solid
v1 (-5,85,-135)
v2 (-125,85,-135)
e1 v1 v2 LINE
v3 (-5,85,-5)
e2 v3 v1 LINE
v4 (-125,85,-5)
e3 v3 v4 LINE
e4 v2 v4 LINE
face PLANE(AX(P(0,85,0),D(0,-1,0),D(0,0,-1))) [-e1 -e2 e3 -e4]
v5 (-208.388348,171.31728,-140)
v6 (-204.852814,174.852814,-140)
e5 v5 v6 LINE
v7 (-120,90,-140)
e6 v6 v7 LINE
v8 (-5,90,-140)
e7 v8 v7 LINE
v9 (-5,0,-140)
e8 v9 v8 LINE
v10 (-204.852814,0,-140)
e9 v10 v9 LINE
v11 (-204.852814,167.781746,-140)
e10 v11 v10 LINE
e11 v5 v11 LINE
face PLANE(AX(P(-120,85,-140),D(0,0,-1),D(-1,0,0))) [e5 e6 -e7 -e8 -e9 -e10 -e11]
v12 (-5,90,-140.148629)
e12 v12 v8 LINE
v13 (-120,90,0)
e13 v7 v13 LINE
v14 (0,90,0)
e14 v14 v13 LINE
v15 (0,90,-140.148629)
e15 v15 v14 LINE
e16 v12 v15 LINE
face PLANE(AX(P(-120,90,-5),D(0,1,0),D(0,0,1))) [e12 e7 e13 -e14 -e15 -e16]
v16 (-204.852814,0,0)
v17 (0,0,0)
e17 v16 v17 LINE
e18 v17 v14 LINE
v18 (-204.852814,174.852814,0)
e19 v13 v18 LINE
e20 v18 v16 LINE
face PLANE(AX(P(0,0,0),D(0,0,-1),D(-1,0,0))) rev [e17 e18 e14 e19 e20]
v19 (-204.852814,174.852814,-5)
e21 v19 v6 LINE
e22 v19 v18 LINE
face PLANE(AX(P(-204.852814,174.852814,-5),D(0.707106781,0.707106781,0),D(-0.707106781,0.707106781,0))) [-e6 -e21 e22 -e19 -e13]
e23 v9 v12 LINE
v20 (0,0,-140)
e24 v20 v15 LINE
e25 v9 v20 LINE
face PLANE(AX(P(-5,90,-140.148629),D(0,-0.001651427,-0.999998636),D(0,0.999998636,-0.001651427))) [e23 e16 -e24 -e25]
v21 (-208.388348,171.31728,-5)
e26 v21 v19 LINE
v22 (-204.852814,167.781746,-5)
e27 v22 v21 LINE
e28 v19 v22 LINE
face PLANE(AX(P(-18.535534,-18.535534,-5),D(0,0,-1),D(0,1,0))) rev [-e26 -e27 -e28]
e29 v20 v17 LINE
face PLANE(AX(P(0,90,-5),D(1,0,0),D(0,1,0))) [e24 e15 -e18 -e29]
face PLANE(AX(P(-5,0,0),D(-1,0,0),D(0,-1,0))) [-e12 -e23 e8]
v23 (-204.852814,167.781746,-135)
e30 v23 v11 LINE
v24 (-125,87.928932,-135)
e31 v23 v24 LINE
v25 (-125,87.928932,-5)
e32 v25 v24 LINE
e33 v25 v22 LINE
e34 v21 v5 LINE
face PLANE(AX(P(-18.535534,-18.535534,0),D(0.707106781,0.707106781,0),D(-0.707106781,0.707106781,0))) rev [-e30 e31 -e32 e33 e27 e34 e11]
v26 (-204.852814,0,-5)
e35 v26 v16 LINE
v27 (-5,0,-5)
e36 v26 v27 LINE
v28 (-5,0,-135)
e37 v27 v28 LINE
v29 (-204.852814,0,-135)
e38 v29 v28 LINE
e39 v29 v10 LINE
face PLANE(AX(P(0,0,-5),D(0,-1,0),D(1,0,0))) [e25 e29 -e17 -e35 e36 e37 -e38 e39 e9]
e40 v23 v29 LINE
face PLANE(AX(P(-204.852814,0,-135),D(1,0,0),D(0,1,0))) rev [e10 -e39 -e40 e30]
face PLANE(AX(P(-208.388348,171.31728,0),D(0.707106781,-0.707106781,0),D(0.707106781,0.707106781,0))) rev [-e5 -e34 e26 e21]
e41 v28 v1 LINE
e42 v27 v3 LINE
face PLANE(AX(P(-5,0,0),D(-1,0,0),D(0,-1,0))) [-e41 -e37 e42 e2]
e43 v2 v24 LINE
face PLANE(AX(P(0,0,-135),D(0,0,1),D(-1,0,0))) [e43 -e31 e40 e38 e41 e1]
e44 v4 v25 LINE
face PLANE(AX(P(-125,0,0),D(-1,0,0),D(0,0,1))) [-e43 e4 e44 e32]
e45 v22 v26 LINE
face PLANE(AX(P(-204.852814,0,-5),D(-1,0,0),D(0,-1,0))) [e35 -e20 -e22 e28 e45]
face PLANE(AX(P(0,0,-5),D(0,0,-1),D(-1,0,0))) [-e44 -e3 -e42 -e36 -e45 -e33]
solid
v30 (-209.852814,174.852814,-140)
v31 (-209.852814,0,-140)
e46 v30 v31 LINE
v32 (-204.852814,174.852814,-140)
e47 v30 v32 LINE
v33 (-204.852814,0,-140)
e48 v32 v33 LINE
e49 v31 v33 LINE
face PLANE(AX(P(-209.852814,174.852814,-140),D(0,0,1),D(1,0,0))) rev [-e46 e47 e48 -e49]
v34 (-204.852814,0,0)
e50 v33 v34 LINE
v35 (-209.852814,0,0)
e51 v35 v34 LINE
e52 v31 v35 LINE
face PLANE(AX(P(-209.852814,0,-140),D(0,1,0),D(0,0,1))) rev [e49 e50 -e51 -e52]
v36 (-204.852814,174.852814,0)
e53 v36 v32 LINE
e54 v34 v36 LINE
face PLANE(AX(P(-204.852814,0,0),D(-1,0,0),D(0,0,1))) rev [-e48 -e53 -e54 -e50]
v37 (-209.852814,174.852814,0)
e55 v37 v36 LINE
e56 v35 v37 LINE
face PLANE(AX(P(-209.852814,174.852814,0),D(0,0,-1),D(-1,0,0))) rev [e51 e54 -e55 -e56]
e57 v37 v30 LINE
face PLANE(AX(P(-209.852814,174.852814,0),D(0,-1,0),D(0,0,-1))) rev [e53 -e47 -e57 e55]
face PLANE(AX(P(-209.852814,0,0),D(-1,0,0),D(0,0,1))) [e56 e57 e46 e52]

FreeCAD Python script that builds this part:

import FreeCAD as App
import Part
import Sketcher

V = App.Vector
Q = App.Units.Quantity

doc = App.newDocument("Part")
body = doc.addObject("PartDesign::Body", "Body")

# Sketch on XY plane
sketch1 = body.newObject("Sketcher::SketchObject", "Sketch")
sketch1.AttachmentSupport = (doc.getObject("XY_Plane"), [""])
sketch1.MapMode = "FlatFace"
sketch1.addGeometry([
    Part.LineSegment(V(-205, 0, 0), V(0, 0, 0)),  # 0
    Part.LineSegment(V(0, 0, 0), V(0, 90, 0)),  # 1
    Part.LineSegment(V(0, 90, 0), V(-120, 90, 0)),  # 2
    Part.LineSegment(V(-120, 90, 0), V(-205, 175, 0)),  # 3
    Part.LineSegment(V(-205, 175, 0), V(-205, 0, 0)),  # 4
], False)
sketch1.addConstraint([
    Sketcher.Constraint("Coincident", 0, 2, 1, 1),
    Sketcher.Constraint("Coincident", 1, 2, 2, 1),
    Sketcher.Constraint("Coincident", 2, 2, 3, 1),
    Sketcher.Constraint("Coincident", 3, 2, 4, 1),
    Sketcher.Constraint("Coincident", 4, 2, 0, 1),
    Sketcher.Constraint("Horizontal", 0),
    Sketcher.Constraint("Vertical", 1),
    Sketcher.Constraint("Horizontal", 2),
    Sketcher.Constraint("Vertical", 4),
    Sketcher.Constraint("Coincident", 0, 2, -1, 1),
    Sketcher.Constraint("DistanceX", 2, 2, 2, 1, 120.0),
    Sketcher.Constraint("DistanceY", 1, 1, 1, 2, 90.0),
    Sketcher.Constraint("Angle", 3, Q("135 deg")),
    Sketcher.Constraint("Distance", 3, 120.0),
])
pad1 = body.newObject("PartDesign::Pad", "Pad")
pad1.Profile = sketch1
pad1.Length = 5
pad1.Reversed = True

# Sketch on XZ plane
sketch2 = body.newObject("Sketcher::SketchObject", "Sketch001")
sketch2.AttachmentSupport = (doc.getObject("XZ_Plane"), [""])
sketch2.MapMode = "FlatFace"
sketch2.AttachmentOffset = App.Placement(V(0, 0, -90), App.Rotation())
sketch2.addGeometry([
    Part.LineSegment(V(-120, -140, 0), V(-120, 0, 0)),
    Part.LineSegment(V(-120, 0, 0), V(0, 0, 0)),
    Part.LineSegment(V(0, 0, 0), V(0, -140, 0)),
    Part.LineSegment(V(0, -140, 0), V(-120, -140, 0)),
], False)
sketch2.addConstraint([
    Sketcher.Constraint("Coincident", 0, 2, 1, 1),
    Sketcher.Constraint("Coincident", 1, 2, 2, 1),
    Sketcher.Constraint("Coincident", 2, 2, 3, 1),
    Sketcher.Constraint("Coincident", 3, 2, 0, 1),
    Sketcher.Constraint("Vertical", 0),
    Sketcher.Constraint("Horizontal", 1),
    Sketcher.Constraint("Vertical", 2),
    Sketcher.Constraint("Horizontal", 3),
    Sketcher.Constraint("Coincident", 1, 2, -1, 1),
    Sketcher.Constraint("DistanceX", 1, 1, 1, 2, 120.0),
    Sketcher.Constraint("DistanceY", 0, 1, 0, 2, 140.0),
])
pad2 = body.newObject("PartDesign::Pad", "Pad001")
pad2.Profile = sketch2
pad2.Length = 5
body2 = doc.addObject("PartDesign::Body", "Body001")

# Sketch on an angled plane
sketch3 = body2.newObject("Sketcher::SketchObject", "Sketch002")
sketch3.Placement = App.Placement(V(-15, -15, 0), App.Rotation(V(0, 0, -1), V(-0.707106781, 0.707106781, 0), V(0.707106781, 0.707106781, 0), "ZXY"))
sketch3.addGeometry([
    Part.LineSegment(V(5, 268, 0), V(5, 148, 0)),
    Part.LineSegment(V(5, 148, 0), V(140, 148, 0)),
    Part.LineSegment(V(140, 148, 0), V(140, 268, 0)),
    Part.LineSegment(V(140, 268, 0), V(5, 268, 0)),
], False)
sketch3.addConstraint([
    Sketcher.Constraint("Coincident", 0, 2, 1, 1),
    Sketcher.Constraint("Coincident", 1, 2, 2, 1),
    Sketcher.Constraint("Coincident", 2, 2, 3, 1),
    Sketcher.Constraint("Coincident", 3, 2, 0, 1),
    Sketcher.Constraint("Vertical", 0),
    Sketcher.Constraint("Horizontal", 1),
    Sketcher.Constraint("Vertical", 2),
    Sketcher.Constraint("Horizontal", 3),
    Sketcher.Constraint("DistanceX", 1, 1, 1, 2, 135.0),
    Sketcher.Constraint("DistanceY", 0, 2, 0, 1, 120.0),
    Sketcher.Constraint("DistanceX", -1, 1, 0, 2, 5.0),
    Sketcher.Constraint("DistanceY", -1, 1, 0, 2, 148.492424),
])
pad3 = body2.newObject("PartDesign::Pad", "Pad002")
pad3.Profile = sketch3
pad3.Length = 5
pad3.Reversed = True
body3 = doc.addObject("PartDesign::Body", "Body002")

# Sketch on YZ plane
sketch4 = body3.newObject("Sketcher::SketchObject", "Sketch003")
sketch4.AttachmentSupport = (doc.getObject("YZ_Plane002"), [""])
sketch4.MapMode = "FlatFace"
sketch4.AttachmentOffset = App.Placement(V(0, 0, -204.852814), App.Rotation())
sketch4.addGeometry([
    Part.LineSegment(V(175, -140, 0), V(0, -140, 0)),
    Part.LineSegment(V(0, -140, 0), V(0, 0, 0)),
    Part.LineSegment(V(0, 0, 0), V(175, 0, 0)),
    Part.LineSegment(V(175, 0, 0), V(175, -140, 0)),
], False)
sketch4.addConstraint([
    Sketcher.Constraint("Coincident", 0, 2, 1, 1),
    Sketcher.Constraint("Coincident", 1, 2, 2, 1),
    Sketcher.Constraint("Coincident", 2, 2, 3, 1),
    Sketcher.Constraint("Coincident", 3, 2, 0, 1),
    Sketcher.Constraint("Horizontal", 0),
    Sketcher.Constraint("Vertical", 1),
    Sketcher.Constraint("Horizontal", 2),
    Sketcher.Constraint("Vertical", 3),
    Sketcher.Constraint("Coincident", 1, 2, -1, 1),
    Sketcher.Constraint("DistanceY", 1, 1, 1, 2, 140.0),
    Sketcher.Constraint("DistanceX", 0, 2, 0, 1, 174.852814),
])
pad4 = body3.newObject("PartDesign::Pad", "Pad003")
pad4.Profile = sketch4
pad4.Length = 5
pad4.Reversed = True
doc.recompute()

boolean = body.newObject("PartDesign::Boolean", "Boolean")
boolean.Type = "Fuse"
boolean.addObjects([body2])

# Sketch on YZ plane
sketch5 = body.newObject("Sketcher::SketchObject", "Sketch004")
sketch5.AttachmentSupport = (doc.getObject("YZ_Plane"), [""])
sketch5.MapMode = "FlatFace"
sketch5.AttachmentOffset = App.Placement(V(0, 0, -120), App.Rotation())
sketch5.addGeometry([
    Part.LineSegment(V(90, -140, 0), V(85, -140, 0)),
    Part.LineSegment(V(85, -140, 0), V(85, -5, 0)),
    Part.LineSegment(V(85, -5, 0), V(90, -5, 0)),
    Part.LineSegment(V(90, -5, 0), V(90, -140, 0)),
], False)
sketch5.addConstraint([
    Sketcher.Constraint("Coincident", 0, 2, 1, 1),
    Sketcher.Constraint("Coincident", 1, 2, 2, 1),
    Sketcher.Constraint("Coincident", 2, 2, 3, 1),
    Sketcher.Constraint("Coincident", 3, 2, 0, 1),
    Sketcher.Constraint("Horizontal", 0),
    Sketcher.Constraint("Vertical", 1),
    Sketcher.Constraint("Horizontal", 2),
    Sketcher.Constraint("Vertical", 3),
    Sketcher.Constraint("DistanceX", 0, 2, 0, 1, 5.0),
    Sketcher.Constraint("DistanceY", 1, 1, 1, 2, 135.0),
    Sketcher.Constraint("DistanceX", -1, 1, 0, 2, 85.0),
    Sketcher.Constraint("DistanceY", 0, 2, -1, 1, 140.0),
])
pad5 = body.newObject("PartDesign::Pad", "Pad004")
pad5.Profile = sketch5
pad5.Length = 5
pad5.Reversed = True

# Sketch on YZ plane
sketch6 = body.newObject("Sketcher::SketchObject", "Sketch005")
sketch6.AttachmentSupport = (doc.getObject("YZ_Plane"), [""])
sketch6.MapMode = "FlatFace"
sketch6.addGeometry([
    Part.LineSegment(V(90, -140, 0), V(90, 0, 0)),
    Part.LineSegment(V(90, 0, 0), V(0, 0, 0)),
    Part.LineSegment(V(0, 0, 0), V(0, -140, 0)),
    Part.LineSegment(V(0, -140, 0), V(90, -140, 0)),
], False)
sketch6.addConstraint([
    Sketcher.Constraint("Coincident", 0, 2, 1, 1),
    Sketcher.Constraint("Coincident", 1, 2, 2, 1),
    Sketcher.Constraint("Coincident", 2, 2, 3, 1),
    Sketcher.Constraint("Coincident", 3, 2, 0, 1),
    Sketcher.Constraint("Vertical", 0),
    Sketcher.Constraint("Horizontal", 1),
    Sketcher.Constraint("Vertical", 2),
    Sketcher.Constraint("Coincident", 1, 2, -1, 1),
    Sketcher.Constraint("DistanceX", 1, 2, 1, 1, 90.0),
    Sketcher.Constraint("DistanceY", 2, 2, 2, 1, 140.0),
    Sketcher.Constraint("DistanceY", 0, 1, 0, 2, 140.148629),
])
pad6 = body.newObject("PartDesign::Pad", "Pad005")
pad6.Profile = sketch6
pad6.Length = 5
pad6.Reversed = True
doc.recompute()

datumplane = body.newObject("PartDesign::Plane", "DatumPlane")
datumplane.AttachmentSupport = (doc.getObject("XY_Plane"), [""])
datumplane.MapMode = "FlatFace"
datumplane.AttachmentOffset = App.Placement(V(0, 0, -70), App.Rotation())
mirrored = body.newObject("PartDesign::Mirrored", "Mirrored")
mirrored.Originals = [pad1]
mirrored.MirrorPlane = (datumplane, [""])
body.Tip = mirrored

doc.recompute()
